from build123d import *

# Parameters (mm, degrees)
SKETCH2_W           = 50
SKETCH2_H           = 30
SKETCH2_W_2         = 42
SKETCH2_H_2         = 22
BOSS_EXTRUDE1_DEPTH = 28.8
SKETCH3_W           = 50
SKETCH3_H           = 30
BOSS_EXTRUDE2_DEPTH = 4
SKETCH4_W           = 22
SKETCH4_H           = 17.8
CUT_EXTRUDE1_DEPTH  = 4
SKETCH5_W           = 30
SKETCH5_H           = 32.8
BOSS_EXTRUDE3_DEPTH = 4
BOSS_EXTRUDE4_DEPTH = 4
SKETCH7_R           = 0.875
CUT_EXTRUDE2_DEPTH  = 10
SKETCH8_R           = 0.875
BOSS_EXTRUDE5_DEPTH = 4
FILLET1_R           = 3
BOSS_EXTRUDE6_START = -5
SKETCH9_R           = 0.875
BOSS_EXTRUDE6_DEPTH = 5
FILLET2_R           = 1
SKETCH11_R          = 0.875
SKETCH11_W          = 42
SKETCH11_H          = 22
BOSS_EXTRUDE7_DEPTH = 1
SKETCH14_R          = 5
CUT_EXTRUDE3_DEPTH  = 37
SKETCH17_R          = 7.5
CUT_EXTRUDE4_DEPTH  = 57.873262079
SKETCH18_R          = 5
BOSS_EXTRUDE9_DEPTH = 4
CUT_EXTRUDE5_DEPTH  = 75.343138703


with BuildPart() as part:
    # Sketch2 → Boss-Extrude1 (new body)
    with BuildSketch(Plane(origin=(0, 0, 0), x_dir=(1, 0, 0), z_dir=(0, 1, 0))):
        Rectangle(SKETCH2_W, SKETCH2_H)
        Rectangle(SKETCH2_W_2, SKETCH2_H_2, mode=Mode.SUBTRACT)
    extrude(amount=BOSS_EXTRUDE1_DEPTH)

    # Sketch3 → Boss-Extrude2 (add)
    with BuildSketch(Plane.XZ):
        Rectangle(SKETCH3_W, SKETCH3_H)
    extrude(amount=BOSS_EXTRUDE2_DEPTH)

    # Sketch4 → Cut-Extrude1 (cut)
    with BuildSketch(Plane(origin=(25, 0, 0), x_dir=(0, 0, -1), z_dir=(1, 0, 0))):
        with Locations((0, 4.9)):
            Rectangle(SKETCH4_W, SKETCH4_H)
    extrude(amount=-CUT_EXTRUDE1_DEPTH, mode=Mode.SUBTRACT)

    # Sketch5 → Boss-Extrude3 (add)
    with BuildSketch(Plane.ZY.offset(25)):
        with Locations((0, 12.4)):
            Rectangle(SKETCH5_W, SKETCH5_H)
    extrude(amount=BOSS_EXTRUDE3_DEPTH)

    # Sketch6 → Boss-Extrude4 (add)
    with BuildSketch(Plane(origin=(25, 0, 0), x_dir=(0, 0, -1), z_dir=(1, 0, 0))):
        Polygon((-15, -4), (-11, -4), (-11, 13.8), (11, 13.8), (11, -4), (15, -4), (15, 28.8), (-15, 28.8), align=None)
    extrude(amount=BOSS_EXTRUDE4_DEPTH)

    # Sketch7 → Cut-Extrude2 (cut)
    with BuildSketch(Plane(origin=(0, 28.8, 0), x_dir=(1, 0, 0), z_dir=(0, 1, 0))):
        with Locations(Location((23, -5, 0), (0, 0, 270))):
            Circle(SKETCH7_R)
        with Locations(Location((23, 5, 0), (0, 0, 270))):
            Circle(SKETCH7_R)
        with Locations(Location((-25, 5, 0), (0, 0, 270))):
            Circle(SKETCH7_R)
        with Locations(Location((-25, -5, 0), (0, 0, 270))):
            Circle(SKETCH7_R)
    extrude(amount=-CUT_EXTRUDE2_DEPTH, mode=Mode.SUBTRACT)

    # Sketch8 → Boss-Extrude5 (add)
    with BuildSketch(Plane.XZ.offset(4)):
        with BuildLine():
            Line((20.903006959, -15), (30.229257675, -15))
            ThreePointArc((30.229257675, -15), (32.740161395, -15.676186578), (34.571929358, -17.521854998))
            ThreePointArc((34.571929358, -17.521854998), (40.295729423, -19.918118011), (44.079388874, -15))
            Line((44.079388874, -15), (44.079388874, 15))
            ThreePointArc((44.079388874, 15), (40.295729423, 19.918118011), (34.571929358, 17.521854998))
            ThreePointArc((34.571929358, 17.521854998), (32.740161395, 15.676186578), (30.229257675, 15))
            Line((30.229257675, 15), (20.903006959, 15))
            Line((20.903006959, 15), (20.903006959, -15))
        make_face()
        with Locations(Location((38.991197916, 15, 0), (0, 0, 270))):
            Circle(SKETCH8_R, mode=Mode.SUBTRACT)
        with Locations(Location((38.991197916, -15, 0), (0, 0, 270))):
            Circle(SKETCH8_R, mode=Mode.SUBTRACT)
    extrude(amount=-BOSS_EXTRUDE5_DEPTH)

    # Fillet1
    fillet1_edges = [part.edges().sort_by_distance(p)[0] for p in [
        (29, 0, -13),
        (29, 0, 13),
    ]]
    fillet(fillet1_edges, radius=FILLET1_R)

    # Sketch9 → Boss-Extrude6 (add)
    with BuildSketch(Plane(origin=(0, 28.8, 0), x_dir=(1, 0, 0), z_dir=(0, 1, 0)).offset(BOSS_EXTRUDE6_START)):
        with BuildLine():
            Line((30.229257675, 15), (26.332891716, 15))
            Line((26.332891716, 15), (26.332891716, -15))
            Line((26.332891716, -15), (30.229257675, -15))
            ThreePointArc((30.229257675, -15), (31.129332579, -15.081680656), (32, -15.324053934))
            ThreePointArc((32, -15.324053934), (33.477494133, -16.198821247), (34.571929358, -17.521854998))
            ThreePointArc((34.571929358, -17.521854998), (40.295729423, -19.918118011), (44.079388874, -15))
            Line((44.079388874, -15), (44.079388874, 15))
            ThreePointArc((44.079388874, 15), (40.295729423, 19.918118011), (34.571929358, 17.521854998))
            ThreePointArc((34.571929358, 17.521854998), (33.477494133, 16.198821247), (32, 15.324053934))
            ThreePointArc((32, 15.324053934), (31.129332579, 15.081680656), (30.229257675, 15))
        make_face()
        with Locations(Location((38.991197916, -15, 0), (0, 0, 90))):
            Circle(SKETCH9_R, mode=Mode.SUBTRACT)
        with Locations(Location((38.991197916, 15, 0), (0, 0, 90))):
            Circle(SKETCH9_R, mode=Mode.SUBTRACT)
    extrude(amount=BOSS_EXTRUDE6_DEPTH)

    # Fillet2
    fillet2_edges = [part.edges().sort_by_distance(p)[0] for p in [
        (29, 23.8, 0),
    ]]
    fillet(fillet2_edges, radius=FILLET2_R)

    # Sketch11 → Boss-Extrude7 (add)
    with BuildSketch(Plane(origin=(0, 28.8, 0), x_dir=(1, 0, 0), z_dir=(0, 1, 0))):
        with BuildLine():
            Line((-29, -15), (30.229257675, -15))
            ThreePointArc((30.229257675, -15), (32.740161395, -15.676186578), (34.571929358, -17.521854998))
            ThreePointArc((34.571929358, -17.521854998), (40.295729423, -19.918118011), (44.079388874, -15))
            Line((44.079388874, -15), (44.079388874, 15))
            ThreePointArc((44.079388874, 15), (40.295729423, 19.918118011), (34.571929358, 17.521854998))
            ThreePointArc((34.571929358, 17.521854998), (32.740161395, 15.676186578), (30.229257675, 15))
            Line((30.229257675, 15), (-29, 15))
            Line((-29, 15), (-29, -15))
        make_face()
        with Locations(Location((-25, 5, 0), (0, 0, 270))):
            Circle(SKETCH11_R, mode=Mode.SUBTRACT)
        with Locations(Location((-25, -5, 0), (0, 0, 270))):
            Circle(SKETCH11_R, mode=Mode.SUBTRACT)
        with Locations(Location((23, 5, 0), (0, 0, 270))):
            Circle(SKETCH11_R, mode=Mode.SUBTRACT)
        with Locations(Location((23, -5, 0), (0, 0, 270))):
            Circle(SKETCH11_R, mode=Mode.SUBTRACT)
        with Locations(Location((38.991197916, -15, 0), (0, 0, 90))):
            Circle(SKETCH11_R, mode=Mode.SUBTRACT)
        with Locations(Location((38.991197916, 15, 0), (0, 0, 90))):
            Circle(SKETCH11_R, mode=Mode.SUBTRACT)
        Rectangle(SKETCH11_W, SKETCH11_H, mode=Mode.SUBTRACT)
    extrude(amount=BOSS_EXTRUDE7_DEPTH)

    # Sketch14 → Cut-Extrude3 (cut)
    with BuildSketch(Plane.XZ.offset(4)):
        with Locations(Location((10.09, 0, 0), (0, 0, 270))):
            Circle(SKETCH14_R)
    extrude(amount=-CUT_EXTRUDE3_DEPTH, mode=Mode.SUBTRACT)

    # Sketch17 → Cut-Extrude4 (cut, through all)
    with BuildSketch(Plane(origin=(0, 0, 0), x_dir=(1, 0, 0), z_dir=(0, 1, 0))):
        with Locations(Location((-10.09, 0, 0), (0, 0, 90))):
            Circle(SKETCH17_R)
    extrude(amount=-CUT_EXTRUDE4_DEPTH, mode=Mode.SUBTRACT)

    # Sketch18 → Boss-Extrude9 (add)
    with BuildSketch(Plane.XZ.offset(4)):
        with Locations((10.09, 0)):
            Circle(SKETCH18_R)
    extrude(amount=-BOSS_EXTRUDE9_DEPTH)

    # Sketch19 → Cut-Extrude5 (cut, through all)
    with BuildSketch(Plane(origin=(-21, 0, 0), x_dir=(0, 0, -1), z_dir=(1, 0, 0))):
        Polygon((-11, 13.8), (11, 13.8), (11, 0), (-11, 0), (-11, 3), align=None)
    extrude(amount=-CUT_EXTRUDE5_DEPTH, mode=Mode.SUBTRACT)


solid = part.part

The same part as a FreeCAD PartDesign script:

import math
import FreeCAD as App
import Part
import Sketcher


def edges_at(feature, points):
    """Names of the edges that pass closest to the given points."""
    edges = feature.Shape.Edges
    near = lambda p: min(range(len(edges)), key=lambda i: edges[i].distToShape(Part.Vertex(*p))[0])
    return sorted({f"Edge{near(p) + 1}" for p in points})

doc = App.newDocument("Part")
body = doc.addObject("PartDesign::Body", "Body")

sketch1 = body.newObject("Sketcher::SketchObject", "Sketch")
sketch1.AttachmentSupport = (doc.getObject("XZ_Plane"), [""])
sketch1.MapMode = "FlatFace"
sketch1.addGeometry([
    Part.LineSegment(App.Vector(-25, -15, 0), App.Vector(-25, 15, 0)),
    Part.LineSegment(App.Vector(-25, 15, 0), App.Vector(25, 15, 0)),
    Part.LineSegment(App.Vector(25, 15, 0), App.Vector(25, -15, 0)),
    Part.LineSegment(App.Vector(25, -15, 0), App.Vector(-25, -15, 0)),
    Part.LineSegment(App.Vector(21, 11, 0), App.Vector(-21, 11, 0)),
    Part.LineSegment(App.Vector(-21, 11, 0), App.Vector(-21, -11, 0)),
    Part.LineSegment(App.Vector(-21, -11, 0), App.Vector(21, -11, 0)),
    Part.LineSegment(App.Vector(21, -11, 0), App.Vector(21, 11, 0)),
], False)
sketch1.addConstraint([
    Sketcher.Constraint("Coincident", 0, 2, 1, 1),
    Sketcher.Constraint("Coincident", 1, 2, 2, 1),
    Sketcher.Constraint("Coincident", 2, 2, 3, 1),
    Sketcher.Constraint("Coincident", 3, 2, 0, 1),
    Sketcher.Constraint("Coincident", 4, 2, 5, 1),
    Sketcher.Constraint("Coincident", 5, 2, 6, 1),
    Sketcher.Constraint("Coincident", 6, 2, 7, 1),
    Sketcher.Constraint("Coincident", 7, 2, 4, 1),
    Sketcher.Constraint("Vertical", 0),
    Sketcher.Constraint("Horizontal", 1),
    Sketcher.Constraint("Vertical", 2),
    Sketcher.Constraint("Horizontal", 3),
    Sketcher.Constraint("Horizontal", 4),
    Sketcher.Constraint("Vertical", 5),
    Sketcher.Constraint("Horizontal", 6),
    Sketcher.Constraint("Vertical", 7),
    Sketcher.Constraint("Symmetric", 0, 2, 2, 2, -1, 1),
    Sketcher.Constraint("Symmetric", 4, 2, 6, 2, -1, 1),
    Sketcher.Constraint("DistanceX", 1, 1, 1, 2, 50.0),
    Sketcher.Constraint("DistanceX", 4, 2, 4, 1, 42.0),
    Sketcher.Constraint("DistanceY", 0, 1, 0, 2, 30.0),
    Sketcher.Constraint("DistanceY", 5, 2, 5, 1, 22.0),
])
pad1 = body.newObject("PartDesign::Pad", "Pad")
pad1.Profile = sketch1
pad1.Length = 28.8
pad1.Reversed = True

sketch2 = body.newObject("Sketcher::SketchObject", "Sketch001")
sketch2.AttachmentSupport = (doc.getObject("XZ_Plane"), [""])
sketch2.MapMode = "FlatFace"
sketch2.addGeometry([
    Part.LineSegment(App.Vector(-25, 15, 0), App.Vector(-25, -15, 0)),
    Part.LineSegment(App.Vector(-25, -15, 0), App.Vector(25, -15, 0)),
    Part.LineSegment(App.Vector(25, -15, 0), App.Vector(25, 15, 0)),
    Part.LineSegment(App.Vector(25, 15, 0), App.Vector(-25, 15, 0)),
], False)
sketch2.addConstraint([
    Sketcher.Constraint("Coincident", 0, 2, 1, 1),
    Sketcher.Constraint("Coincident", 1, 2, 2, 1),
    Sketcher.Constraint("Coincident", 2, 2, 3, 1),
    Sketcher.Constraint("Coincident", 3, 2, 0, 1),
    Sketcher.Constraint("Vertical", 0),
    Sketcher.Constraint("Horizontal", 1),
    Sketcher.Constraint("Vertical", 2),
    Sketcher.Constraint("Horizontal", 3),
    Sketcher.Constraint("Symmetric", 0, 2, 2, 2, -1, 1),
    Sketcher.Constraint("DistanceX", 1, 1, 1, 2, 50.0),
    Sketcher.Constraint("DistanceY", 0, 2, 0, 1, 30.0),
])
pad2 = body.newObject("PartDesign::Pad", "Pad001")
pad2.Profile = sketch2
pad2.Length = 4

sketch3 = body.newObject("Sketcher::SketchObject", "Sketch002")
sketch3.AttachmentSupport = (doc.getObject("YZ_Plane"), [""])
sketch3.MapMode = "FlatFace"
sketch3.AttachmentOffset = App.Placement(App.Vector(0, 0, 25), App.Rotation())
sketch3.addGeometry([
    Part.LineSegment(App.Vector(14, 11, 0), App.Vector(-4, 11, 0)),
    Part.LineSegment(App.Vector(-4, 11, 0), App.Vector(-4, -11, 0)),
    Part.LineSegment(App.Vector(-4, -11, 0), App.Vector(14, -11, 0)),
    Part.LineSegment(App.Vector(14, -11, 0), App.Vector(14, 11, 0)),
], False)
sketch3.addConstraint([
    Sketcher.Constraint("Coincident", 0, 2, 1, 1),
    Sketcher.Constraint("Coincident", 1, 2, 2, 1),
    Sketcher.Constraint("Coincident", 2, 2, 3, 1),
    Sketcher.Constraint("Coincident", 3, 2, 0, 1),
    Sketcher.Constraint("Horizontal", 0),
    Sketcher.Constraint("Vertical", 1),
    Sketcher.Constraint("Horizontal", 2),
    Sketcher.Constraint("Vertical", 3),
    Sketcher.Constraint("DistanceY", 1, 2, 1, 1, 22.0),
    Sketcher.Constraint("DistanceX", 0, 2, 0, 1, 17.8),
    Sketcher.Constraint("DistanceX", 0, 2, -1, 1, 4.0),
    Sketcher.Constraint("DistanceY", -1, 1, 0, 2, 11.0),
])
pocket1 = body.newObject("PartDesign::Pocket", "Pocket")
pocket1.Profile = sketch3
pocket1.Length = 4

sketch4 = body.newObject("Sketcher::SketchObject", "Sketch003")
sketch4.AttachmentSupport = (doc.getObject("YZ_Plane"), [""])
sketch4.MapMode = "FlatFace"
sketch4.AttachmentOffset = App.Placement(App.Vector(0, 0, -25), App.Rotation())
sketch4.addGeometry([
    Part.LineSegment(App.Vector(29, -15, 0), App.Vector(-4, -15, 0)),
    Part.LineSegment(App.Vector(-4, -15, 0), App.Vector(-4, 15, 0)),
    Part.LineSegment(App.Vector(-4, 15, 0), App.Vector(29, 15, 0)),
    Part.LineSegment(App.Vector(29, 15, 0), App.Vector(29, -15, 0)),
], False)
sketch4.addConstraint([
    Sketcher.Constraint("Coincident", 0, 2, 1, 1),
    Sketcher.Constraint("Coincident", 1, 2, 2, 1),
    Sketcher.Constraint("Coincident", 2, 2, 3, 1),
    Sketcher.Constraint("Coincident", 3, 2, 0, 1),
    Sketcher.Constraint("Horizontal", 0),
    Sketcher.Constraint("Vertical", 1),
    Sketcher.Constraint("Horizontal", 2),
    Sketcher.Constraint("Vertical", 3),
    Sketcher.Constraint("DistanceY", 1, 1, 1, 2, 30.0),
    Sketcher.Constraint("DistanceX", 0, 2, 0, 1, 32.8),
    Sketcher.Constraint("DistanceX", 0, 2, -1, 1, 4.0),
    Sketcher.Constraint("DistanceY", 0, 2, -1, 1, 15.0),
])
pad3 = body.newObject("PartDesign::Pad", "Pad002")
pad3.Profile = sketch4
pad3.Length = 4
pad3.Reversed = True

sketch5 = body.newObject("Sketcher::SketchObject", "Sketch004")
sketch5.AttachmentSupport = (doc.getObject("YZ_Plane"), [""])
sketch5.MapMode = "FlatFace"
sketch5.AttachmentOffset = App.Placement(App.Vector(0, 0, 25), App.Rotation())
sketch5.addGeometry([
    Part.LineSegment(App.Vector(-4, 15, 0), App.Vector(-4, 11, 0)),
    Part.LineSegment(App.Vector(-4, 11, 0), App.Vector(13.8, 11, 0)),
    Part.LineSegment(App.Vector(13.8, 11, 0), App.Vector(13.8, -11, 0)),
    Part.LineSegment(App.Vector(13.8, -11, 0), App.Vector(-4, -11, 0)),
    Part.LineSegment(App.Vector(-4, -11, 0), App.Vector(-4, -15, 0)),
    Part.LineSegment(App.Vector(-4, -15, 0), App.Vector(28.8, -15, 0)),
    Part.LineSegment(App.Vector(28.8, -15, 0), App.Vector(28.8, 15, 0)),
    Part.LineSegment(App.Vector(28.8, 15, 0), App.Vector(-4, 15, 0)),
], False)
sketch5.addConstraint([
    Sketcher.Constraint("Coincident", 0, 2, 1, 1),
    Sketcher.Constraint("Coincident", 1, 2, 2, 1),
    Sketcher.Constraint("Coincident", 2, 2, 3, 1),
    Sketcher.Constraint("Coincident", 3, 2, 4, 1),
    Sketcher.Constraint("Coincident", 4, 2, 5, 1),
    Sketcher.Constraint("Coincident", 5, 2, 6, 1),
    Sketcher.Constraint("Coincident", 6, 2, 7, 1),
    Sketcher.Constraint("Coincident", 7, 2, 0, 1),
    Sketcher.Constraint("Vertical", 0),
    Sketcher.Constraint("Horizontal", 1),
    Sketcher.Constraint("Vertical", 2),
    Sketcher.Constraint("Horizontal", 3),
    Sketcher.Constraint("Vertical", 4),
    Sketcher.Constraint("Horizontal", 5),
    Sketcher.Constraint("Vertical", 6),
    Sketcher.Constraint("Horizontal", 7),
    Sketcher.Constraint("Symmetric", 0, 2, 3, 2, -1),
    Sketcher.Constraint("Equal", 0, 4),
    Sketcher.Constraint("DistanceY", 0, 2, 0, 1, 4.0),
    Sketcher.Constraint("DistanceY", 2, 2, 2, 1, 22.0),
    Sketcher.Constraint("DistanceX", 1, 1, 1, 2, 17.8),
    Sketcher.Constraint("DistanceX", 5, 1, 5, 2, 32.8),
    Sketcher.Constraint("DistanceX", 0, 2, -1, 1, 4.0),
])
pad4 = body.newObject("PartDesign::Pad", "Pad003")
pad4.Profile = sketch5
pad4.Length = 4

sketch6 = body.newObject("Sketcher::SketchObject", "Sketch005")
sketch6.AttachmentSupport = (doc.getObject("XZ_Plane"), [""])
sketch6.MapMode = "FlatFace"
sketch6.AttachmentOffset = App.Placement(App.Vector(0, 0, -28.8), App.Rotation())
sketch6.addGeometry([
    Part.Circle(App.Vector(23, 5, 0), App.Vector(0, 0, 1), 0.9),
    Part.Circle(App.Vector(23, -5, 0), App.Vector(0, 0, 1), 0.9),
    Part.Circle(App.Vector(-25, -5, 0), App.Vector(0, 0, 1), 0.9),
    Part.Circle(App.Vector(-25, 5, 0), App.Vector(0, 0, 1), 0.9),
], False)
sketch6.addConstraint([
    Sketcher.Constraint("Equal", 0, 1),
    Sketcher.Constraint("Equal", 1, 2),
    Sketcher.Constraint("Equal", 2, 3),
    Sketcher.Constraint("Symmetric", 0, 3, 1, 3, -1),
    Sketcher.Constraint("Symmetric", 2, 3, 3, 3, -1),
    Sketcher.Constraint("Horizontal", 1, 3, 2, 3),
    Sketcher.Constraint("Diameter", 0, 1.75),
    Sketcher.Constraint("DistanceX", -1, 1, 0, 3, 23.0),
    Sketcher.Constraint("DistanceY", -1, 1, 0, 3, 5.0),
    Sketcher.Constraint("DistanceX", 2, 3, -1, 1, 25.0),
])
pocket2 = body.newObject("PartDesign::Pocket", "Pocket001")
pocket2.Profile = sketch6
pocket2.Length = 10
pocket2.Reversed = True

sketch7 = body.newObject("Sketcher::SketchObject", "Sketch006")
sketch7.AttachmentSupport = (doc.getObject("XZ_Plane"), [""])
sketch7.MapMode = "FlatFace"
sketch7.AttachmentOffset = App.Placement(App.Vector(0, 0, 4), App.Rotation())
sketch7.addGeometry([
    Part.LineSegment(App.Vector(20.9, -15, 0), App.Vector(30.2, -15, 0)),
    Part.ArcOfCircle(Part.Circle(App.Vector(30.2, -20, 0), App.Vector(0, 0, 1), 5), math.radians(30), math.radians(90)),
    Part.ArcOfCircle(Part.Circle(App.Vector(39, -15, 0), App.Vector(0, 0, 1), 5.1), math.radians(-150), math.radians(0)),
    Part.LineSegment(App.Vector(44.1, -15, 0), App.Vector(44.1, 15, 0)),
    Part.ArcOfCircle(Part.Circle(App.Vector(39, 15, 0), App.Vector(0, 0, 1), 5.1), math.radians(0), math.radians(150)),
    Part.ArcOfCircle(Part.Circle(App.Vector(30.2, 20, 0), App.Vector(0, 0, 1), 5), math.radians(-90), math.radians(-30)),
    Part.LineSegment(App.Vector(30.2, 15, 0), App.Vector(20.9, 15, 0)),
    Part.LineSegment(App.Vector(20.9, 15, 0), App.Vector(20.9, -15, 0)),
    Part.Circle(App.Vector(39, -15, 0), App.Vector(0, 0, 1), 0.9),
    Part.Circle(App.Vector(39, 15, 0), App.Vector(0, 0, 1), 0.9),
], False)
sketch7.addConstraint([
    Sketcher.Constraint("Tangent", 0, 2, 1, 2),
    Sketcher.Constraint("Tangent", 1, 1, 2, 1),
    Sketcher.Constraint("Tangent", 2, 2, 3, 1),
    Sketcher.Constraint("Tangent", 3, 2, 4, 1),
    Sketcher.Constraint("Tangent", 4, 2, 5, 2),
    Sketcher.Constraint("Tangent", 5, 1, 6, 1),
    Sketcher.Constraint("Coincident", 6, 2, 7, 1),
    Sketcher.Constraint("Coincident", 7, 2, 0, 1),
    Sketcher.Constraint("Horizontal", 0),
    Sketcher.Constraint("Vertical", 3),
    Sketcher.Constraint("Horizontal", 6),
    Sketcher.Constraint("Vertical", 7),
    Sketcher.Constraint("Coincident", 8, 3, 2, 3),
    Sketcher.Constraint("Coincident", 9, 3, 4, 3),
    Sketcher.Constraint("Equal", 2, 4),
    Sketcher.Constraint("Equal", 1, 5),
    Sketcher.Constraint("Equal", 8, 9),
    Sketcher.Constraint("Symmetric", 1, 3, 5, 3, -1),
    Sketcher.Constraint("Horizontal", 8, 3, 0, 2),
    Sketcher.Constraint("Radius", 1, 5.0),
    Sketcher.Constraint("Diameter", 8, 1.75),
    Sketcher.Constraint("DistanceY", 3, 1, 3, 2, 30.0),
    Sketcher.Constraint("Radius", 2, 5.088191),
    Sketcher.Constraint("DistanceX", 0, 1, 0, 2, 9.326251),
    Sketcher.Constraint("DistanceX", -1, 1, 1, 1, 34.571929),
])
pad5 = body.newObject("PartDesign::Pad", "Pad004")
pad5.Profile = sketch7
pad5.Length = 4
pad5.Reversed = True
doc.recompute()

fillet = body.newObject("PartDesign::Fillet", "Fillet")
fillet.Base = (pad5, edges_at(pad5, [(29, 0, -13), (29, 0, 13)]))
fillet.Radius = 3

sketch8 = body.newObject("Sketcher::SketchObject", "Sketch007")
sketch8.AttachmentSupport = (doc.getObject("XZ_Plane"), [""])
sketch8.MapMode = "FlatFace"
sketch8.AttachmentOffset = App.Placement(App.Vector(0, 0, -23.8), App.Rotation())
sketch8.addGeometry([
    Part.LineSegment(App.Vector(30.2, -15, 0), App.Vector(26.3, -15, 0)),
    Part.LineSegment(App.Vector(26.3, -15, 0), App.Vector(26.3, 15, 0)),
    Part.LineSegment(App.Vector(26.3, 15, 0), App.Vector(30.2, 15, 0)),
    Part.ArcOfCircle(Part.Circle(App.Vector(30.2, 20, 0), App.Vector(0, 0, 1), 5), math.radians(-90), math.radians(-69)),
    Part.ArcOfCircle(Part.Circle(App.Vector(30.2, 20, 0), App.Vector(0, 0, 1), 5), math.radians(-69), math.radians(-30)),
    Part.ArcOfCircle(Part.Circle(App.Vector(39, 15, 0), App.Vector(0, 0, 1), 5.1), math.radians(0), math.radians(150)),
    Part.LineSegment(App.Vector(44.1, 15, 0), App.Vector(44.1, -15, 0)),
    Part.ArcOfCircle(Part.Circle(App.Vector(39, -15, 0), App.Vector(0, 0, 1), 5.1), math.radians(-150), math.radians(0)),
    Part.ArcOfCircle(Part.Circle(App.Vector(30.2, -20, 0), App.Vector(0, 0, 1), 5), math.radians(30), math.radians(69)),
    Part.ArcOfCircle(Part.Circle(App.Vector(30.2, -20, 0), App.Vector(0, 0, 1), 5), math.radians(69), math.radians(90)),
    Part.Circle(App.Vector(39, 15, 0), App.Vector(0, 0, 1), 0.9),
    Part.Circle(App.Vector(39, -15, 0), App.Vector(0, 0, 1), 0.9),
], False)
sketch8.addConstraint([
    Sketcher.Constraint("Coincident", 0, 2, 1, 1),
    Sketcher.Constraint("Coincident", 1, 2, 2, 1),
    Sketcher.Constraint("Tangent", 2, 2, 3, 1),
    Sketcher.Constraint("Tangent", 3, 2, 4, 1),
    Sketcher.Constraint("Tangent", 4, 2, 5, 2),
    Sketcher.Constraint("Tangent", 5, 1, 6, 1),
    Sketcher.Constraint("Tangent", 6, 2, 7, 2),
    Sketcher.Constraint("Tangent", 7, 1, 8, 1),
    Sketcher.Constraint("Tangent", 8, 2, 9, 1),
    Sketcher.Constraint("Tangent", 9, 2, 0, 1),
    Sketcher.Constraint("Horizontal", 0),
    Sketcher.Constraint("Vertical", 1),
    Sketcher.Constraint("Horizontal", 2),
    Sketcher.Constraint("Vertical", 6),
    Sketcher.Constraint("Coincident", 10, 3, 5, 3),
    Sketcher.Constraint("Coincident", 11, 3, 7, 3),
    Sketcher.Constraint("Equal", 3, 4),
    Sketcher.Constraint("Equal", 5, 7),
    Sketcher.Constraint("Equal", 4, 8),
    Sketcher.Constraint("Equal", 8, 9),
    Sketcher.Constraint("Equal", 10, 11),
    Sketcher.Constraint("Symmetric", 3, 3, 8, 3, -1),
    Sketcher.Constraint("Horizontal", 11, 3, 0, 2),
    Sketcher.Constraint("Vertical", 3, 2, 8, 2),
    Sketcher.Constraint("Radius", 3, 5.0),
    Sketcher.Constraint("Diameter", 10, 1.75),
    Sketcher.Constraint("DistanceY", 1, 1, 1, 2, 30.0),
    Sketcher.Constraint("DistanceX", -1, 1, 3, 2, 32.0),
    Sketcher.Constraint("Radius", 5, 5.088191),
    Sketcher.Constraint("DistanceY", 3, 2, 4, 2, 2.197801),
    Sketcher.Constraint("DistanceX", 0, 2, 0, 1, 3.896366),
])
pad6 = body.newObject("PartDesign::Pad", "Pad005")
pad6.Profile = sketch8
pad6.Length = 5
pad6.Reversed = True
doc.recompute()

fillet2 = body.newObject("PartDesign::Fillet", "Fillet001")
fillet2.Base = (pad6, edges_at(pad6, [(29, 23.8, 0)]))
fillet2.Radius = 1

sketch9 = body.newObject("Sketcher::SketchObject", "Sketch008")
sketch9.AttachmentSupport = (doc.getObject("XZ_Plane"), [""])
sketch9.MapMode = "FlatFace"
sketch9.AttachmentOffset = App.Placement(App.Vector(0, 0, -28.8), App.Rotation())
sketch9.addGeometry([
    Part.LineSegment(App.Vector(-29, 15, 0), App.Vector(30.2, 15, 0)),
    Part.ArcOfCircle(Part.Circle(App.Vector(30.2, 20, 0), App.Vector(0, 0, 1), 5), math.radians(-90), math.radians(-30)),
    Part.ArcOfCircle(Part.Circle(App.Vector(39, 15, 0), App.Vector(0, 0, 1), 5.1), math.radians(0), math.radians(150)),
    Part.LineSegment(App.Vector(44.1, 15, 0), App.Vector(44.1, -15, 0)),
    Part.ArcOfCircle(Part.Circle(App.Vector(39, -15, 0), App.Vector(0, 0, 1), 5.1), math.radians(-150), math.radians(0)),
    Part.ArcOfCircle(Part.Circle(App.Vector(30.2, -20, 0), App.Vector(0, 0, 1), 5), math.radians(30), math.radians(90)),
    Part.LineSegment(App.Vector(30.2, -15, 0), App.Vector(-29, -15, 0)),
    Part.LineSegment(App.Vector(-29, -15, 0), App.Vector(-29, 15, 0)),
    Part.Circle(App.Vector(-25, 5, 0), App.Vector(0, 0, 1), 0.9),
    Part.Circle(App.Vector(39, 15, 0), App.Vector(0, 0, 1), 0.9),
    Part.Circle(App.Vector(23, 5, 0), App.Vector(0, 0, 1), 0.9),
    Part.Circle(App.Vector(-25, -5, 0), App.Vector(0, 0, 1), 0.9),
    Part.LineSegment(App.Vector(21, 11, 0), App.Vector(-21, 11, 0)),
    Part.LineSegment(App.Vector(-21, 11, 0), App.Vector(-21, -11, 0)),
    Part.LineSegment(App.Vector(-21, -11, 0), App.Vector(21, -11, 0)),
    Part.LineSegment(App.Vector(21, -11, 0), App.Vector(21, 11, 0)),
    Part.Circle(App.Vector(23, -5, 0), App.Vector(0, 0, 1), 0.9),
    Part.Circle(App.Vector(39, -15, 0), App.Vector(0, 0, 1), 0.9),
], False)
sketch9.addConstraint([
    Sketcher.Constraint("Tangent", 0, 2, 1, 1),
    Sketcher.Constraint("Tangent", 1, 2, 2, 2),
    Sketcher.Constraint("Tangent", 2, 1, 3, 1),
    Sketcher.Constraint("Tangent", 3, 2, 4, 2),
    Sketcher.Constraint("Tangent", 4, 1, 5, 1),
    Sketcher.Constraint("Tangent", 5, 2, 6, 1),
    Sketcher.Constraint("Coincident", 6, 2, 7, 1),
    Sketcher.Constraint("Coincident", 7, 2, 0, 1),
    Sketcher.Constraint("Coincident", 12, 2, 13, 1),
    Sketcher.Constraint("Coincident", 13, 2, 14, 1),
    Sketcher.Constraint("Coincident", 14, 2, 15, 1),
    Sketcher.Constraint("Coincident", 15, 2, 12, 1),
    Sketcher.Constraint("Horizontal", 0),
    Sketcher.Constraint("Vertical", 3),
    Sketcher.Constraint("Horizontal", 6),
    Sketcher.Constraint("Vertical", 7),
    Sketcher.Constraint("Horizontal", 12),
    Sketcher.Constraint("Vertical", 13),
    Sketcher.Constraint("Horizontal", 14),
    Sketcher.Constraint("Vertical", 15),
    Sketcher.Constraint("Coincident", 9, 3, 2, 3),
    Sketcher.Constraint("Coincident", 17, 3, 4, 3),
    Sketcher.Constraint("Equal", 2, 4),
    Sketcher.Constraint("Equal", 1, 5),
    Sketcher.Constraint("Equal", 8, 9),
    Sketcher.Constraint("Equal", 9, 10),
    Sketcher.Constraint("Equal", 10, 11),
    Sketcher.Constraint("Equal", 11, 16),
    Sketcher.Constraint("Equal", 16, 17),
    Sketcher.Constraint("Symmetric", 12, 2, 14, 2, -1, 1),
    Sketcher.Constraint("Symmetric", 1, 3, 5, 3, -1),
    Sketcher.Constraint("Symmetric", 8, 3, 11, 3, -1),
    Sketcher.Constraint("Symmetric", 10, 3, 16, 3, -1),
    Sketcher.Constraint("Horizontal", 8, 3, 10, 3),
    Sketcher.Constraint("Horizontal", 9, 3, 0, 2),
    Sketcher.Constraint("Radius", 1, 5.0),
    Sketcher.Constraint("Diameter", 8, 1.75),
    Sketcher.Constraint("DistanceX", 12, 2, 12, 1, 42.0),
    Sketcher.Constraint("DistanceY", 3, 2, 3, 1, 30.0),
    Sketcher.Constraint("DistanceY", 13, 2, 13, 1, 22.0),
    Sketcher.Constraint("DistanceX", 8, 3, -1, 1, 25.0),
    Sketcher.Constraint("DistanceY", -1, 1, 8, 3, 5.0),
    Sketcher.Constraint("DistanceX", -1, 1, 10, 3, 23.0),
    Sketcher.Constraint("DistanceX", 6, 2, -1, 1, 29.0),
    Sketcher.Constraint("Radius", 2, 5.088191),
    Sketcher.Constraint("DistanceX", 0, 1, 0, 2, 59.229258),
])
pad7 = body.newObject("PartDesign::Pad", "Pad006")
pad7.Profile = sketch9
pad7.Length = 1
pad7.Reversed = True

sketch10 = body.newObject("Sketcher::SketchObject", "Sketch009")
sketch10.AttachmentSupport = (doc.getObject("XZ_Plane"), [""])
sketch10.MapMode = "FlatFace"
sketch10.AttachmentOffset = App.Placement(App.Vector(0, 0, 4), App.Rotation())
sketch10.addGeometry(Part.Circle(App.Vector(10, 0, 0), App.Vector(0, 0, 1), 5), False)
sketch10.addConstraint([
    Sketcher.Constraint("PointOnObject", 0, 3, -1),
    Sketcher.Constraint("Diameter", 0, 10.0),
    Sketcher.Constraint("DistanceX", -1, 1, 0, 3, 10.09),
])
pocket3 = body.newObject("PartDesign::Pocket", "Pocket002")
pocket3.Profile = sketch10
pocket3.Length = 37

sketch11 = body.newObject("Sketcher::SketchObject", "Sketch010")
sketch11.AttachmentSupport = (doc.getObject("XZ_Plane"), [""])
sketch11.MapMode = "FlatFace"
sketch11.addGeometry(Part.Circle(App.Vector(-10, 0, 0), App.Vector(0, 0, 1), 8), False)
sketch11.addConstraint([
    Sketcher.Constraint("PointOnObject", 0, 3, -1),
    Sketcher.Constraint("Diameter", 0, 15.0),
    Sketcher.Constraint("DistanceX", 0, 3, -1, 1, 10.09),
])
pocket4 = body.newObject("PartDesign::Pocket", "Pocket003")
pocket4.Profile = sketch11
pocket4.Type = "ThroughAll"
pocket4.Reversed = True

sketch12 = body.newObject("Sketcher::SketchObject", "Sketch011")
sketch12.AttachmentSupport = (doc.getObject("XZ_Plane"), [""])
sketch12.MapMode = "FlatFace"
sketch12.AttachmentOffset = App.Placement(App.Vector(0, 0, 4), App.Rotation())
sketch12.addGeometry(Part.Circle(App.Vector(10, 0, 0), App.Vector(0, 0, 1), 5), False)
sketch12.addConstraint([
    Sketcher.Constraint("PointOnObject", 0, 3, -1),
    Sketcher.Constraint("Diameter", 0, 10.0),
    Sketcher.Constraint("DistanceX", -1, 1, 0, 3, 10.09),
])
pad8 = body.newObject("PartDesign::Pad", "Pad007")
pad8.Profile = sketch12
pad8.Length = 4
pad8.Reversed = True

sketch13 = body.newObject("Sketcher::SketchObject", "Sketch012")
sketch13.AttachmentSupport = (doc.getObject("YZ_Plane"), [""])
sketch13.MapMode = "FlatFace"
sketch13.AttachmentOffset = App.Placement(App.Vector(0, 0, -21), App.Rotation())
sketch13.addGeometry([
    Part.LineSegment(App.Vector(14, -11, 0), App.Vector(14, 11, 0)),
    Part.LineSegment(App.Vector(14, 11, 0), App.Vector(0, 11, 0)),
    Part.LineSegment(App.Vector(0, 11, 0), App.Vector(0, -11, 0)),
    Part.LineSegment(App.Vector(0, -11, 0), App.Vector(14, -11, 0)),
], False)
sketch13.addConstraint([
    Sketcher.Constraint("Coincident", 0, 2, 1, 1),
    Sketcher.Constraint("Coincident", 1, 2, 2, 1),
    Sketcher.Constraint("Coincident", 2, 2, 3, 1),
    Sketcher.Constraint("Coincident", 3, 2, 0, 1),
    Sketcher.Constraint("Vertical", 0),
    Sketcher.Constraint("Horizontal", 1),
    Sketcher.Constraint("Vertical", 2),
    Sketcher.Constraint("Horizontal", 3),
    Sketcher.Constraint("Symmetric", 1, 2, 2, 2, -1, 1),
    Sketcher.Constraint("DistanceY", 0, 1, 0, 2, 22.0),
    Sketcher.Constraint("DistanceX", 1, 2, 1, 1, 13.8),
])
pocket5 = body.newObject("PartDesign::Pocket", "Pocket004")
pocket5.Profile = sketch13
pocket5.Type = "ThroughAll"

doc.recompute()
